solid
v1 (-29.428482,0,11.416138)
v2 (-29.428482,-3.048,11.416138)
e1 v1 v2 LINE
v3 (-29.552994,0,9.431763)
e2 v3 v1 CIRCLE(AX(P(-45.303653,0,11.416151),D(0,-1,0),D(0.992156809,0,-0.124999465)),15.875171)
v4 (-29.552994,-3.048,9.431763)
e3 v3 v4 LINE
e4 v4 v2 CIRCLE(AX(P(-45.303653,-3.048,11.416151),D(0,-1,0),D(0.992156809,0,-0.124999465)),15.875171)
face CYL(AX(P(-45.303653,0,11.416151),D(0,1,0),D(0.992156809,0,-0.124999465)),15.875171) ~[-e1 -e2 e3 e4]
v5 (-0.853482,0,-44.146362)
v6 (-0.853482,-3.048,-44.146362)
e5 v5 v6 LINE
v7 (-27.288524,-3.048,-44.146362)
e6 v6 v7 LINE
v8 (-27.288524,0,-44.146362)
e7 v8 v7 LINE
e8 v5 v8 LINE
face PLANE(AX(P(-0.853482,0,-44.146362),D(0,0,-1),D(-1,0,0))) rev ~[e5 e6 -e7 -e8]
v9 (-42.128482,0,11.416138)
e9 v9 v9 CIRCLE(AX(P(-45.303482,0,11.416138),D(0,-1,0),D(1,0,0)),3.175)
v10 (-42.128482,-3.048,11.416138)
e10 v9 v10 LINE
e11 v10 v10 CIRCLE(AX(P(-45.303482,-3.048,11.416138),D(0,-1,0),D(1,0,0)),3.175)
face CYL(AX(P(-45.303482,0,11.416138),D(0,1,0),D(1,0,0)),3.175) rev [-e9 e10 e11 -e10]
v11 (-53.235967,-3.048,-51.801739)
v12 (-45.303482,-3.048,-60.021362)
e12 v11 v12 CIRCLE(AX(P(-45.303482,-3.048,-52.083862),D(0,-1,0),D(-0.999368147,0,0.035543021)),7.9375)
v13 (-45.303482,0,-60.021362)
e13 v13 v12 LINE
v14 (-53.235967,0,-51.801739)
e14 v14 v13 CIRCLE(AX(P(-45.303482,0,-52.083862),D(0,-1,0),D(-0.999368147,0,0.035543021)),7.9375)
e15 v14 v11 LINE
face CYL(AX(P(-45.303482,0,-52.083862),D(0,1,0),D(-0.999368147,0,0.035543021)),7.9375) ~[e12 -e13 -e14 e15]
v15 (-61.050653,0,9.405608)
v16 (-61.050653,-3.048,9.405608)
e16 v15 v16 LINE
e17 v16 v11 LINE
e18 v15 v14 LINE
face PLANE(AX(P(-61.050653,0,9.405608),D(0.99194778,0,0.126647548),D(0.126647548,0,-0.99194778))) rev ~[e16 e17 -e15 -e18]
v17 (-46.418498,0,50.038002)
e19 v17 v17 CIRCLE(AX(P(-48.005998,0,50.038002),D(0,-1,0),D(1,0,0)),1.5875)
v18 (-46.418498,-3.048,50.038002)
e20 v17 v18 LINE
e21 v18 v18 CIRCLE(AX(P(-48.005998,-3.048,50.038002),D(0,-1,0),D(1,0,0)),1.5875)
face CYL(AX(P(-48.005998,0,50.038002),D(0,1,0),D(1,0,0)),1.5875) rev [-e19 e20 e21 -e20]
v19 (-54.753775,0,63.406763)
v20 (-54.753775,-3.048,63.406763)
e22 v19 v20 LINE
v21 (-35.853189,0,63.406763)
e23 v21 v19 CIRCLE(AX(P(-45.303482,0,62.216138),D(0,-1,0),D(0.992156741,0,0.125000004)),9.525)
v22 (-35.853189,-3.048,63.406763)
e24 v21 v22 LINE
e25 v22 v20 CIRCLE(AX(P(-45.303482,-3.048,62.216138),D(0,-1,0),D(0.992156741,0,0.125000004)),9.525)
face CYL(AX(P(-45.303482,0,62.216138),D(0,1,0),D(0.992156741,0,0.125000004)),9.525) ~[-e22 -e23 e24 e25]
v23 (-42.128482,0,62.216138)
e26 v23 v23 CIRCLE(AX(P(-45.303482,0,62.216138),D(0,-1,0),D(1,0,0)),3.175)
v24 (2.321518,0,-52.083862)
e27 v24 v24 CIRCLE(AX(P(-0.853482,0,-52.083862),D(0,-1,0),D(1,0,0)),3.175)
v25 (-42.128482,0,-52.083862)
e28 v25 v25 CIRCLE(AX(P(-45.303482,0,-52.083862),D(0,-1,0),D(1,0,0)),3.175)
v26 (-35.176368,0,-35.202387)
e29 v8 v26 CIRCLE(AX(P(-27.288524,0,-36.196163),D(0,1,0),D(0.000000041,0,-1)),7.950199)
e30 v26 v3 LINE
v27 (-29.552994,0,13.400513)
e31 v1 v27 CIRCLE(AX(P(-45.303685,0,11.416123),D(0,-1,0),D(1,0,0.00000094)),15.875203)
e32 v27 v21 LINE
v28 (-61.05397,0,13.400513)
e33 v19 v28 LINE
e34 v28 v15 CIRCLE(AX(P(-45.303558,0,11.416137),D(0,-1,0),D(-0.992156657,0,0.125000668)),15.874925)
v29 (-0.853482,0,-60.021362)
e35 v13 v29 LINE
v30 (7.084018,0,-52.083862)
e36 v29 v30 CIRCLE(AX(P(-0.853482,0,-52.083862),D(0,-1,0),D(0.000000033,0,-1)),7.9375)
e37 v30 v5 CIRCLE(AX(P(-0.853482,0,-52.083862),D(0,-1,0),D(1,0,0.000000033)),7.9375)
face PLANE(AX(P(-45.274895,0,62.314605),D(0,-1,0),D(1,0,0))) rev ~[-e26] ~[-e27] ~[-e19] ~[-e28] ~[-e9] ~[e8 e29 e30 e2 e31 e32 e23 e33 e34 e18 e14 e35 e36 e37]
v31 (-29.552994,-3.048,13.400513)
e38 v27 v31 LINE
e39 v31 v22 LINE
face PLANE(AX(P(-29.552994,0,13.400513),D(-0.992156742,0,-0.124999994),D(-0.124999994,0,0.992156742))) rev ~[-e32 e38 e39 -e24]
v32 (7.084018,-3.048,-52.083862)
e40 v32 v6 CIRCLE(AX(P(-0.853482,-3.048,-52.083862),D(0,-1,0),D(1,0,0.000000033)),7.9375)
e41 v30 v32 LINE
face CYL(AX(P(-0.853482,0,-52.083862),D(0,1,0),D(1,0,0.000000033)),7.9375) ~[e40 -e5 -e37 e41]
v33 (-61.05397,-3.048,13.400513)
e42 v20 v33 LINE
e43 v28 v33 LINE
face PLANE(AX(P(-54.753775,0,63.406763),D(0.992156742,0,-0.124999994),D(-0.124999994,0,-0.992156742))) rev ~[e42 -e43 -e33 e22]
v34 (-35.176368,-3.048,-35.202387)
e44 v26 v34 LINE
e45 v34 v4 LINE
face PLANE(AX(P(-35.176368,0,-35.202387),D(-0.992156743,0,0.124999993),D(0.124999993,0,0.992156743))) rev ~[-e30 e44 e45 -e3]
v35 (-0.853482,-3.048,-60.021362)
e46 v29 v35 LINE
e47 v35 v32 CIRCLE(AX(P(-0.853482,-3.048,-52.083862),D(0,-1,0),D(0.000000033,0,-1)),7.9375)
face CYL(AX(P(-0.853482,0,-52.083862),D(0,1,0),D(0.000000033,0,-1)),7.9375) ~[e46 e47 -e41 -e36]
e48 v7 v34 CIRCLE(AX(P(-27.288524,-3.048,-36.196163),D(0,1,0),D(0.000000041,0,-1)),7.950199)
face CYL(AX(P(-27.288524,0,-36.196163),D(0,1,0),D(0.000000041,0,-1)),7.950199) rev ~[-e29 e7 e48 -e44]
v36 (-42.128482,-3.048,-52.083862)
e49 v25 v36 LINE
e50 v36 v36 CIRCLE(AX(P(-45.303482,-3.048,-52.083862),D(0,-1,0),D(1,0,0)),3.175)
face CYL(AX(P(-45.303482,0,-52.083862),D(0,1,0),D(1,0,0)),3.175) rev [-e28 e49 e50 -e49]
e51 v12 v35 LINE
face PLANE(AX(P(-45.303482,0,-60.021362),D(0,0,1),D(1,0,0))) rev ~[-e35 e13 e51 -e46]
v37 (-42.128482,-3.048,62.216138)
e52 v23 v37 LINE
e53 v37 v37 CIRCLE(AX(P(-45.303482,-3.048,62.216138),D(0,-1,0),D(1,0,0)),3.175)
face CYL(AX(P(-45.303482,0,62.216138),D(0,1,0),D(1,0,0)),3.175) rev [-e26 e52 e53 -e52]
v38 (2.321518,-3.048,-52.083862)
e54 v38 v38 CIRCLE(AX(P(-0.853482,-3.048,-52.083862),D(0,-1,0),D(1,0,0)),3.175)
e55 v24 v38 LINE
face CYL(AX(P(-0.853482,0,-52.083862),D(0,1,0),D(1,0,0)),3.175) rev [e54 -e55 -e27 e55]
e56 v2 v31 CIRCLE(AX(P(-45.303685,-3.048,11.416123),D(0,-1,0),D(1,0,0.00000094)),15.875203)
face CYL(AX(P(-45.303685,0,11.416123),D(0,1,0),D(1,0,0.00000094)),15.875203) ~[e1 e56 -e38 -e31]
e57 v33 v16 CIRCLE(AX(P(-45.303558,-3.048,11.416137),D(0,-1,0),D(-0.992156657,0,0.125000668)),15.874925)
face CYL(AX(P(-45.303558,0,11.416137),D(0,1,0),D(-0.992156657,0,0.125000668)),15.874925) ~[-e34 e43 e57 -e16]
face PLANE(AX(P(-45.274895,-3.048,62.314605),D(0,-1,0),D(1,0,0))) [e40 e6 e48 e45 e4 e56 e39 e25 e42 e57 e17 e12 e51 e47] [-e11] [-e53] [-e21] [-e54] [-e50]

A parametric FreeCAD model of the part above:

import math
import FreeCAD as App
import Part
import Sketcher

V = App.Vector
Q = App.Units.Quantity

doc = App.newDocument("Part")
body = doc.addObject("PartDesign::Body", "Body")

# Sketch on XZ plane
sketch1 = body.newObject("Sketcher::SketchObject", "Sketch")
sketch1.AttachmentSupport = (doc.getObject("XZ_Plane"), [""])
sketch1.MapMode = "FlatFace"
sketch1.addGeometry(Part.ArcOfCircle(Part.Circle(V(-45.303482, 62.216138, 0), V(0, 0, 1), 9.525), math.radians(7.180756), math.radians(172.819244)), False)
sketch1.addGeometry(Part.LineSegment(V(-54.753775, 63.406763, 0), V(-61.05397, 13.400513, 0)), False)
sketch1.addGeometry(Part.ArcOfCircle(Part.Circle(V(-45.303558, 11.416137, 0), V(0, 0, 1), 15.874925), math.radians(172.819206), math.radians(187.275941)), False)
sketch1.addGeometry(Part.LineSegment(V(-61.050653, 9.405608, 0), V(-53.235967, -51.801739, 0)), False)
sketch1.addGeometry(Part.ArcOfCircle(Part.Circle(V(-45.303482, -52.083862, 0), V(0, 0, 1), 7.9375), math.radians(177.963106), math.radians(270.000001)), False)
sketch1.addGeometry(Part.LineSegment(V(-45.303482, -60.021362, 0), V(-0.853482, -60.021362, 0)), False)
sketch1.addGeometry(Part.ArcOfCircle(Part.Circle(V(-0.853482, -52.083862, 0), V(0, 0, 1), 7.9375), math.radians(-89.999998), math.radians(-0.000002)), False)
sketch1.addGeometry(Part.ArcOfCircle(Part.Circle(V(-0.853482, -52.083862, 0), V(0, 0, 1), 7.9375), math.radians(0.000002), math.radians(89.999998)), False)
sketch1.addGeometry(Part.LineSegment(V(-0.853482, -44.146362, 0), V(-27.288524, -44.146362, 0)), False)
sketch1.addGeometry(Part.ArcOfCircle(Part.Circle(V(-27.288524, -36.196163, 0), V(0, 0, 1), 7.950199), math.radians(172.819238), math.radians(270.000002)), False)
sketch1.addGeometry(Part.LineSegment(V(-35.176368, -35.202387, 0), V(-29.552994, 9.431763, 0)), False)
sketch1.addGeometry(Part.ArcOfCircle(Part.Circle(V(-45.303653, 11.416151, 0), V(0, 0, 1), 15.875171), math.radians(-7.180725), math.radians(-0.000047)), False)
sketch1.addGeometry(Part.ArcOfCircle(Part.Circle(V(-45.303685, 11.416123, 0), V(0, 0, 1), 15.875203), math.radians(0.000054), math.radians(7.180718)), False)
sketch1.addGeometry(Part.LineSegment(V(-29.552994, 13.400513, 0), V(-35.853189, 63.406763, 0)), False)
sketch1.addGeometry(Part.Circle(V(-45.303482, -52.083862, 0), V(0, 0, 1), 3.175), False)
sketch1.addGeometry(Part.Circle(V(-0.853482, -52.083862, 0), V(0, 0, 1), 3.175), False)
sketch1.addGeometry(Part.Circle(V(-45.303482, 11.416138, 0), V(0, 0, 1), 3.175), False)
sketch1.addGeometry(Part.Circle(V(-48.005998, 50.038002, 0), V(0, 0, 1), 1.5875), False)
sketch1.addGeometry(Part.Circle(V(-45.303482, 62.216138, 0), V(0, 0, 1), 3.175), False)
sketch1.addConstraint(Sketcher.Constraint("Coincident", 0, 2, 1, 1))
sketch1.addConstraint(Sketcher.Constraint("Coincident", 1, 2, 2, 1))
sketch1.addConstraint(Sketcher.Constraint("Coincident", 2, 2, 3, 1))
sketch1.addConstraint(Sketcher.Constraint("Coincident", 3, 2, 4, 1))
sketch1.addConstraint(Sketcher.Constraint("Coincident", 4, 2, 5, 1))
sketch1.addConstraint(Sketcher.Constraint("Coincident", 5, 2, 6, 1))
sketch1.addConstraint(Sketcher.Constraint("Coincident", 6, 2, 7, 1))
sketch1.addConstraint(Sketcher.Constraint("Coincident", 7, 2, 8, 1))
sketch1.addConstraint(Sketcher.Constraint("Coincident", 8, 2, 9, 2))
sketch1.addConstraint(Sketcher.Constraint("Coincident", 9, 1, 10, 1))
sketch1.addConstraint(Sketcher.Constraint("Coincident", 10, 2, 11, 1))
sketch1.addConstraint(Sketcher.Constraint("Coincident", 11, 2, 12, 1))
sketch1.addConstraint(Sketcher.Constraint("Coincident", 12, 2, 13, 1))
sketch1.addConstraint(Sketcher.Constraint("Coincident", 13, 2, 0, 1))
sketch1.addConstraint(Sketcher.Constraint("Horizontal", 5))
sketch1.addConstraint(Sketcher.Constraint("Horizontal", 8))
sketch1.addConstraint(Sketcher.Constraint("Coincident", 7, 3, 6, 3))
sketch1.addConstraint(Sketcher.Constraint("Coincident", 14, 3, 4, 3))
sketch1.addConstraint(Sketcher.Constraint("Coincident", 15, 3, 6, 3))
sketch1.addConstraint(Sketcher.Constraint("Coincident", 18, 3, 0, 3))
sketch1.addConstraint(Sketcher.Constraint("Diameter", 14, Q("0.25 in")))
sketch1.addConstraint(Sketcher.Constraint("Diameter", 15, Q("0.25 in")))
sketch1.addConstraint(Sketcher.Constraint("Diameter", 16, Q("0.25 in")))
sketch1.addConstraint(Sketcher.Constraint("Diameter", 18, Q("0.25 in")))
sketch1.addConstraint(Sketcher.Constraint("Diameter", 17, Q("0.125 in")))
sketch1.addConstraint(Sketcher.Constraint("Radius", 0, Q("0.375 in")))
sketch1.addConstraint(Sketcher.Constraint("Radius", 4, Q("0.3125 in")))
sketch1.addConstraint(Sketcher.Constraint("Radius", 6, Q("0.3125 in")))
sketch1.addConstraint(Sketcher.Constraint("Radius", 9, Q("0.313 in")))
sketch1.addConstraint(Sketcher.Constraint("DistanceY", 2, 3, 0, 3, Q("2 in")))
sketch1.addConstraint(Sketcher.Constraint("DistanceY", 16, 3, 0, 3, Q("2 in")))
sketch1.addConstraint(Sketcher.Constraint("DistanceX", 5, 1, 5, 2, Q("1.75 in")))
sketch1.addConstraint(Sketcher.Constraint("DistanceY", 4, 3, 2, 3, Q("2.4999999 in")))
sketch1.addConstraint(Sketcher.Constraint("DistanceX", 17, 3, -1, 1, Q("1.8899999 in")))
sketch1.addConstraint(Sketcher.Constraint("DistanceY", -1, 1, 17, 3, Q("1.9700001 in")))
sketch1.addConstraint(Sketcher.Constraint("DistanceX", 4, 3, 6, 3, Q("1.75 in")))
sketch1.addConstraint(Sketcher.Constraint("DistanceX", 0, 3, 6, 3, Q("1.75 in")))
sketch1.addConstraint(Sketcher.Constraint("DistanceX", 4, 2, 7, 3, Q("1.75 in")))
sketch1.addConstraint(Sketcher.Constraint("Radius", 11, 15.875171))
sketch1.addConstraint(Sketcher.Constraint("DistanceY", 18, 3, 0, 2, Q("0.046875 in")))
sketch1.addConstraint(Sketcher.Constraint("DistanceY", 2, 3, 1, 2, Q("0.078125 in")))
sketch1.addConstraint(Sketcher.Constraint("DistanceY", 5, 2, 6, 2, Q("0.3125 in")))
sketch1.addConstraint(Sketcher.Constraint("DistanceX", 7, 2, 6, 2, Q("0.3125 in")))
sketch1.addConstraint(Sketcher.Constraint("DistanceY", 10, 2, 16, 3, Q("0.078125 in")))
sketch1.addConstraint(Sketcher.Constraint("DistanceY", 10, 2, 11, 2, Q("0.078125 in")))
sketch1.addConstraint(Sketcher.Constraint("DistanceX", 16, 3, 11, 2, Q("0.625 in")))
sketch1.addConstraint(Sketcher.Constraint("DistanceY", 11, 2, 12, 2, Q("0.078125 in")))
sketch1.addConstraint(Sketcher.Constraint("DistanceY", 18, 3, 13, 2, Q("0.046875 in")))
sketch1.addConstraint(Sketcher.Constraint("Radius", 2, 15.874925))
sketch1.addConstraint(Sketcher.Constraint("Radius", 12, 15.875203))
sketch1.addConstraint(Sketcher.Constraint("DistanceX", 8, 2, 8, 1, 26.435042))
sketch1.addConstraint(Sketcher.Constraint("DistanceX", 2, 2, 11, 3, 15.747))
sketch1.addConstraint(Sketcher.Constraint("DistanceX", 3, 2, 9, 1, 18.059599))
sketch1.addConstraint(Sketcher.Constraint("DistanceY", 4, 3, -1, 1, 52.083862))
sketch1.addConstraint(Sketcher.Constraint("DistanceY", -1, 1, 11, 3, 11.416151))
sketch1.addConstraint(Sketcher.Constraint("DistanceX", 15, 3, -1, 1, 0.853482))
sketch1.addConstraint(Sketcher.Constraint("DistanceX", 1, 2, -1, 1, 61.05397))
sketch1.addConstraint(Sketcher.Constraint("DistanceY", 3, 2, -1, 1, 51.801739))
sketch1.addConstraint(Sketcher.Constraint("DistanceX", 11, 3, 0, 3, 0.000171))
sketch1.addConstraint(Sketcher.Constraint("DistanceX", 11, 3, 9, 3, 18.015129))
sketch1.addConstraint(Sketcher.Constraint("DistanceY", 12, 3, 17, 3, 38.621879))
pad1 = body.newObject("PartDesign::Pad", "Pad")
pad1.Profile = sketch1
pad1.Length = Q("0.12 in")

doc.recompute()
